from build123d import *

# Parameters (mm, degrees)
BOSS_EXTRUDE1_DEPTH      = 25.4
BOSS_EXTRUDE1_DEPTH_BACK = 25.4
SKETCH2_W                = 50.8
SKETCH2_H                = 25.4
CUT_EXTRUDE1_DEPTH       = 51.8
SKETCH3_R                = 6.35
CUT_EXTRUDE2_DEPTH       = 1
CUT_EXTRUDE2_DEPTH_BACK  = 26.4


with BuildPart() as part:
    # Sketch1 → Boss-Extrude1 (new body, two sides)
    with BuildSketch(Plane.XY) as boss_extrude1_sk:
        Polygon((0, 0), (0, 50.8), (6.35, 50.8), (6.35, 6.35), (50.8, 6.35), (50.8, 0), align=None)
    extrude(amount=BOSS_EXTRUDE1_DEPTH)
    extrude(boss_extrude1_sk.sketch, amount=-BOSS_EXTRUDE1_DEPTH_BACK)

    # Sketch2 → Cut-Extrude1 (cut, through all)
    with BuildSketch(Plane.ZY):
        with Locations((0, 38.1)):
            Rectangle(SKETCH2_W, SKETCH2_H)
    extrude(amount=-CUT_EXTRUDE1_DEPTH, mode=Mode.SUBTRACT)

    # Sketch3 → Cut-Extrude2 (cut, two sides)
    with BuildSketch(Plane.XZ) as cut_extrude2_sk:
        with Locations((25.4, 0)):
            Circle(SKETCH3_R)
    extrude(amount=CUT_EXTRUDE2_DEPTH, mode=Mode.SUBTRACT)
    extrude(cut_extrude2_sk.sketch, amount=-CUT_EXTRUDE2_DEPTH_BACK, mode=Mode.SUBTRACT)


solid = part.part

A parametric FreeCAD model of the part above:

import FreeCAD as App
import Part
import Sketcher
from FreeCAD import Vector
Q = App.Units.Quantity


def add_polygon(sketch, points):
    """Adds a closed chain of lines whose ends are joined by coincident constraints."""
    first, n = sketch.GeometryCount, len(points)
    for a, b in zip(points, points[1:] + points[:1]):
        sketch.addGeometry(Part.LineSegment(App.Vector(*a, 0), App.Vector(*b, 0)), False)
    for i in range(n):
        sketch.addConstraint(Sketcher.Constraint("Coincident", first + i, 2, first + (i + 1) % n, 1))

doc = App.newDocument("Part")
params = doc.addObject("Spreadsheet::Sheet", "Params")
for row, (alias, value) in enumerate([
    ("sketch1_width", "2 in"),
    ("sketch1_width2", "1.75 in"),
    ("pad1_length", "1 in"),
    ("pad1_length2", "1 in"),
    ("sketch2_width", "1 in"),
    ("sketch2_height", "2 in"),
    ("sketch3_diameter", "0.5 in"),
], start=1):
    params.set(f"A{row}", alias)
    params.set(f"B{row}", "=" + value)
    params.setAlias(f"B{row}", alias)

body = doc.addObject("PartDesign::Body", "Body")

# Sketch on XY plane
sketch1 = body.newObject("Sketcher::SketchObject", "Sketch")
sketch1.AttachmentSupport = (doc.getObject("XY_Plane"), [""])
sketch1.MapMode = "FlatFace"
add_polygon(sketch1, [(0, 51), (0, 0), (51, 0), (51, 6), (6, 6), (6, 51)])  # lines 0-5
sketch1.addConstraint(Sketcher.Constraint("Vertical", 0))
sketch1.addConstraint(Sketcher.Constraint("Horizontal", 1))
sketch1.addConstraint(Sketcher.Constraint("Vertical", 2))
sketch1.addConstraint(Sketcher.Constraint("Horizontal", 3))
sketch1.addConstraint(Sketcher.Constraint("Vertical", 4))
sketch1.addConstraint(Sketcher.Constraint("Horizontal", 5))
sketch1.addConstraint(Sketcher.Constraint("Coincident", 0, 2, -1, 1))
sketch1.addConstraint(Sketcher.Constraint("Equal", 1, 0))
sketch1.addConstraint(Sketcher.Constraint("Equal", 5, 2))
sketch1.addConstraint(Sketcher.Constraint("DistanceX", 1, 1, 1, 2, Q("2 in")))
sketch1.addConstraint(Sketcher.Constraint("DistanceX", 3, 2, 3, 1, Q("1.75 in")))
sketch1.setExpression("Constraints[15]", "Params.sketch1_width")
sketch1.setExpression("Constraints[16]", "Params.sketch1_width2")
pad1 = body.newObject("PartDesign::Pad", "Pad")
pad1.Profile = sketch1
pad1.Type = "TwoLengths"
pad1.setExpression("Length", "Params.pad1_length")
pad1.setExpression("Length2", "Params.pad1_length2")

# Sketch on YZ plane
sketch2 = body.newObject("Sketcher::SketchObject", "Sketch001")
sketch2.AttachmentSupport = (doc.getObject("YZ_Plane"), [""])
sketch2.MapMode = "FlatFace"
add_polygon(sketch2, [(51, -25), (25, -25), (25, 25), (51, 25)])  # lines 0-3
sketch2.addConstraint(Sketcher.Constraint("Horizontal", 0))
sketch2.addConstraint(Sketcher.Constraint("Vertical", 1))
sketch2.addConstraint(Sketcher.Constraint("Horizontal", 2))
sketch2.addConstraint(Sketcher.Constraint("Vertical", 3))
sketch2.addConstraint(Sketcher.Constraint("DistanceX", 0, 2, 0, 1, Q("1 in")))
sketch2.addConstraint(Sketcher.Constraint("DistanceY", 1, 1, 1, 2, Q("2 in")))
sketch2.addConstraint(Sketcher.Constraint("DistanceX", -1, 1, 0, 2, Q("1 in")))
sketch2.addConstraint(Sketcher.Constraint("DistanceY", 0, 2, -1, 1, Q("1 in")))
sketch2.setExpression("Constraints[8]", "Params.sketch2_width")
sketch2.setExpression("Constraints[9]", "Params.sketch2_height")
pocket1 = body.newObject("PartDesign::Pocket", "Pocket")
pocket1.Profile = sketch2
pocket1.Type = "ThroughAll"
pocket1.Reversed = True

# Sketch on XZ plane
sketch3 = body.newObject("Sketcher::SketchObject", "Sketch002")
sketch3.AttachmentSupport = (doc.getObject("XZ_Plane"), [""])
sketch3.MapMode = "FlatFace"
sketch3.addGeometry(Part.Circle(Vector(25, 0, 0), Vector(0, 0, 1), 6), False)
sketch3.addConstraint(Sketcher.Constraint("PointOnObject", 0, 3, -1))
sketch3.addConstraint(Sketcher.Constraint("Diameter", 0, Q("0.5 in")))
sketch3.addConstraint(Sketcher.Constraint("DistanceX", -1, 1, 0, 3, Q("1 in")))
sketch3.setExpression("Constraints[1]", "Params.sketch3_diameter")
pocket2 = body.newObject("PartDesign::Pocket", "Pocket001")
pocket2.Profile = sketch3
pocket2.Type = "ThroughAll"
pocket2.Midplane = True

doc.recompute()
